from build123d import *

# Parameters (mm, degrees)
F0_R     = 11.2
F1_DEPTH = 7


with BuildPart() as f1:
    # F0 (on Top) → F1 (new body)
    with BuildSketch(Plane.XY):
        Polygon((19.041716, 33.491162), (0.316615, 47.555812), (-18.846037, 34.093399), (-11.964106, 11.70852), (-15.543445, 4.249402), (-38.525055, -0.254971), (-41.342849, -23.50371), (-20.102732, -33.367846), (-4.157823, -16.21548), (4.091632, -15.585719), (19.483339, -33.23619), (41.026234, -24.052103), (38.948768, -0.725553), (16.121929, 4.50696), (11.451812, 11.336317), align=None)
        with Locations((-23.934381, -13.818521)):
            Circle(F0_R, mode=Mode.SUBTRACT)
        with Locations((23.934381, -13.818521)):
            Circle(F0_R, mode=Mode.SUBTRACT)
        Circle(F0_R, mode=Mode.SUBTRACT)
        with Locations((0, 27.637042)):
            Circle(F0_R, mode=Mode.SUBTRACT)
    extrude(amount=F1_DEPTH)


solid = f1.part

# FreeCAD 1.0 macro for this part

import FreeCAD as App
import Part
import Sketcher

V = App.Vector
Q = App.Units.Quantity


def add_polygon(sketch, points):
    """Adds a closed chain of lines whose ends are joined by coincident constraints."""
    first, n = sketch.GeometryCount, len(points)
    for a, b in zip(points, points[1:] + points[:1]):
        sketch.addGeometry(Part.LineSegment(App.Vector(*a, 0), App.Vector(*b, 0)), False)
    for i in range(n):
        sketch.addConstraint(Sketcher.Constraint("Coincident", first + i, 2, first + (i + 1) % n, 1))

doc = App.newDocument("Part")
params = doc.addObject("Spreadsheet::Sheet", "Params")
for row, (alias, value) in enumerate([
    ("sketch1_diameter", "22.4 mm"),
    ("sketch1_diameter2", "22.4 mm"),
    ("sketch1_diameter3", "22.4 mm"),
    ("sketch1_diameter4", "22.4 mm"),
    ("pad1_length", "7 mm"),
], start=1):
    params.set(f"A{row}", alias)
    params.set(f"B{row}", "=" + value)
    params.setAlias(f"B{row}", alias)

body = doc.addObject("PartDesign::Body", "Body")

# Sketch on XY plane
sketch1 = body.newObject("Sketcher::SketchObject", "Sketch")
sketch1.AttachmentSupport = (doc.getObject("XY_Plane"), [""])
sketch1.MapMode = "FlatFace"
add_polygon(sketch1, [(19.041716, 33.491162), (0.316615, 47.555812), (-18.846037, 34.093399), (-11.964106, 11.70852), (-15.543445, 4.249402), (-38.525055, -0.254971), (-41.342849, -23.50371), (-20.102732, -33.367846), (-4.157823, -16.21548), (4.091632, -15.585719), (19.483339, -33.23619), (41.026234, -24.052103), (38.948768, -0.725553), (16.121929, 4.50696), (11.451812, 11.336317)])  # lines 0-14
sketch1.addGeometry(Part.Circle(V(-23.934381, -13.818521, 0), V(0, 0, 1), 11.2), False)  # 15
sketch1.addGeometry(Part.Circle(V(0, 0, 0), V(0, 0, 1), 11.2), False)  # 16
sketch1.addGeometry(Part.Circle(V(23.934381, -13.818521, 0), V(0, 0, 1), 11.2), False)  # 17
sketch1.addGeometry(Part.Circle(V(0, 27.637042, 0), V(0, 0, 1), 11.2), False)  # 18
sketch1.addConstraint([
    Sketcher.Constraint("Coincident", 16, 3, -1, 1),
    Sketcher.Constraint("PointOnObject", 18, 3, -2),
    Sketcher.Constraint("Diameter", 15, Q("22.4 mm")),
    Sketcher.Constraint("Diameter", 16, Q("22.4 mm")),
    Sketcher.Constraint("Diameter", 17, Q("22.4 mm")),
    Sketcher.Constraint("Diameter", 18, Q("22.4 mm")),
    Sketcher.Constraint("DistanceY", -1, 1, 1, 2, Q("34.093399 mm")),
    Sketcher.Constraint("DistanceX", 0, 2, 14, 2, Q("18.725101 mm")),
    Sketcher.Constraint("Distance", 3, Q("8.273458 mm")),
    Sketcher.Constraint("Distance", 13, Q("8.273458 mm")),
    Sketcher.Constraint("DistanceX", 15, 3, -1, 1, Q("23.934381 mm")),
    Sketcher.Constraint("DistanceY", 15, 3, -1, 1, Q("13.818521 mm")),
    Sketcher.Constraint("DistanceX", -1, 1, 17, 3, Q("23.934381 mm")),
    Sketcher.Constraint("DistanceY", 17, 3, -1, 1, Q("13.818521 mm")),
    Sketcher.Constraint("DistanceY", -1, 1, 2, 2, Q("11.70852 mm")),
    Sketcher.Constraint("DistanceY", 4, 2, -1, 1, Q("0.254971 mm")),
    Sketcher.Constraint("DistanceX", 5, 2, -1, 1, Q("41.342849 mm")),
    Sketcher.Constraint("DistanceY", 5, 2, -1, 1, Q("23.50371 mm")),
    Sketcher.Constraint("DistanceX", 6, 2, -1, 1, Q("20.102732 mm")),
    Sketcher.Constraint("DistanceY", 7, 2, -1, 1, Q("16.21548 mm")),
    Sketcher.Constraint("DistanceX", -1, 1, 8, 2, Q("4.091632 mm")),
    Sketcher.Constraint("DistanceY", 8, 2, -1, 1, Q("15.585719 mm")),
    Sketcher.Constraint("DistanceX", -1, 1, 9, 2, Q("19.483339 mm")),
    Sketcher.Constraint("DistanceY", 9, 2, -1, 1, Q("33.23619 mm")),
    Sketcher.Constraint("DistanceX", -1, 1, 12, 2, Q("16.121929 mm")),
    Sketcher.Constraint("DistanceY", -1, 1, 12, 2, Q("4.50696 mm")),
    Sketcher.Constraint("DistanceY", 18, 3, 0, 2, Q("19.91877 mm")),
    Sketcher.Constraint("DistanceX", 1, 2, 0, 2, Q("19.162652 mm")),
    Sketcher.Constraint("DistanceX", 1, 2, 2, 2, Q("6.881931 mm")),
    Sketcher.Constraint("DistanceX", 3, 2, 2, 2, Q("3.579339 mm")),
    Sketcher.Constraint("DistanceY", 3, 2, 18, 3, Q("23.38764 mm")),
    Sketcher.Constraint("DistanceX", 4, 2, 3, 2, Q("22.98161 mm")),
    Sketcher.Constraint("DistanceY", 6, 2, 3, 2, Q("37.617248 mm")),
    Sketcher.Constraint("DistanceX", 6, 2, 7, 2, Q("15.944909 mm")),
    Sketcher.Constraint("DistanceY", 10, 2, 17, 3, Q("10.233582 mm")),
    Sketcher.Constraint("DistanceY", 17, 3, 11, 2, Q("13.092968 mm")),
    Sketcher.Constraint("DistanceX", 9, 2, 11, 2, Q("19.465429 mm")),
    Sketcher.Constraint("DistanceY", 18, 3, 14, 2, Q("5.85412 mm")),
    Sketcher.Constraint("Distance", 5, Q("23.418878 mm")),
    Sketcher.Constraint("Distance", 10, Q("23.418877 mm")),
    Sketcher.Constraint("Distance", 14, Q("23.418877 mm")),
])
sketch1.setExpression("Constraints[17]", "Params.sketch1_diameter")
sketch1.setExpression("Constraints[18]", "Params.sketch1_diameter2")
sketch1.setExpression("Constraints[19]", "Params.sketch1_diameter3")
sketch1.setExpression("Constraints[20]", "Params.sketch1_diameter4")
pad1 = body.newObject("PartDesign::Pad", "Pad")
pad1.Profile = sketch1
pad1.setExpression("Length", "Params.pad1_length")

doc.recompute()
